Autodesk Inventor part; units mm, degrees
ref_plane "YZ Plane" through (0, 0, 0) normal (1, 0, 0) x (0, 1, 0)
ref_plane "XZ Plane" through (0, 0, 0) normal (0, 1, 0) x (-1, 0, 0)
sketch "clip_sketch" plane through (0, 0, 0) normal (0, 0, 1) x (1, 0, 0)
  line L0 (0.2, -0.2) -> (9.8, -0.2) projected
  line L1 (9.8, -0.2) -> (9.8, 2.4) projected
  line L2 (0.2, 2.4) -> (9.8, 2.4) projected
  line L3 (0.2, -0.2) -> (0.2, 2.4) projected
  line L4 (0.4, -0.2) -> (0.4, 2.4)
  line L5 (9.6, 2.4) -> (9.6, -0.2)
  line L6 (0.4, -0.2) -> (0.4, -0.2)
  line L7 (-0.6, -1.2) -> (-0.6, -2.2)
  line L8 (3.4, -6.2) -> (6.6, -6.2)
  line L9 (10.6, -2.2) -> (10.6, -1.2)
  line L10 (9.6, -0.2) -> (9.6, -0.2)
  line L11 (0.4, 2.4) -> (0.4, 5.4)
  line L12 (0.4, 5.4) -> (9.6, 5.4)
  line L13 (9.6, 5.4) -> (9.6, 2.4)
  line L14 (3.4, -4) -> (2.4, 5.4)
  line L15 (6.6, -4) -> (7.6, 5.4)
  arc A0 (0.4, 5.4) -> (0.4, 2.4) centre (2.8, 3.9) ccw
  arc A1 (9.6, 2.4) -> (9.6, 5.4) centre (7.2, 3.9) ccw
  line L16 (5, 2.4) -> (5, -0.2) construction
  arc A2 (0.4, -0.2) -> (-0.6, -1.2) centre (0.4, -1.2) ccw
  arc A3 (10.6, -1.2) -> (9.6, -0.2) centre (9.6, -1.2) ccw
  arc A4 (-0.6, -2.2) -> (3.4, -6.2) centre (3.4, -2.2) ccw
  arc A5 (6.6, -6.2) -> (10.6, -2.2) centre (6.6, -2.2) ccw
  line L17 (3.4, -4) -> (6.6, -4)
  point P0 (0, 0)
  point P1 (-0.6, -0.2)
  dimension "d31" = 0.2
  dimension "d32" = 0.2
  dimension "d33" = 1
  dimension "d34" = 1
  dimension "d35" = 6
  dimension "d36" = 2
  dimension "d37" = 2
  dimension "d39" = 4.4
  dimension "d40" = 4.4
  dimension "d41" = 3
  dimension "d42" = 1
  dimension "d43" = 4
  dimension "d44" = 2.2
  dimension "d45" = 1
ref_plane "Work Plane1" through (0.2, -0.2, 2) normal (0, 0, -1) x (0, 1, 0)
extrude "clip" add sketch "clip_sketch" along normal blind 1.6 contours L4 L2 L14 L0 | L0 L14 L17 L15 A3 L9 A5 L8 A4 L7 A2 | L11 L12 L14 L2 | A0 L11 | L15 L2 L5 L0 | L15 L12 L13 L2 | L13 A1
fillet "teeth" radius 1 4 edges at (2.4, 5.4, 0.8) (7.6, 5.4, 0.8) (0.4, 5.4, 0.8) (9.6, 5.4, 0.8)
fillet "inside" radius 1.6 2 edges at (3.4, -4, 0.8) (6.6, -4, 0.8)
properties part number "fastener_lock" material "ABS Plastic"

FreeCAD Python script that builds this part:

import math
import FreeCAD as App
import Part
import Sketcher

V = App.Vector


def edges_at(feature, points):
    """Names of the edges that pass closest to the given points."""
    edges = feature.Shape.Edges
    near = lambda p: min(range(len(edges)), key=lambda i: edges[i].distToShape(Part.Vertex(*p))[0])
    return sorted({f"Edge{near(p) + 1}" for p in points})

doc = App.newDocument("Part")
body = doc.addObject("PartDesign::Body", "Body")

# Sketch on XY plane
sketch1 = body.newObject("Sketcher::SketchObject", "Sketch")
sketch1.AttachmentSupport = (doc.getObject("XY_Plane"), [""])
sketch1.MapMode = "FlatFace"
sketch1.addGeometry(Part.LineSegment(V(0.4, 2.4, 0), V(0.4, -0.2, 0)), False)
sketch1.addGeometry(Part.ArcOfCircle(Part.Circle(V(0.4, -1.2, 0), V(0, 0, 1), 1), math.radians(90), math.radians(180)), False)
sketch1.addGeometry(Part.LineSegment(V(-0.6, -1.2, 0), V(-0.6, -2.2, 0)), False)
sketch1.addGeometry(Part.ArcOfCircle(Part.Circle(V(3.4, -2.2, 0), V(0, 0, 1), 4), math.radians(180), math.radians(270)), False)
sketch1.addGeometry(Part.LineSegment(V(3.4, -6.2, 0), V(6.6, -6.2, 0)), False)
sketch1.addGeometry(Part.ArcOfCircle(Part.Circle(V(6.6, -2.2, 0), V(0, 0, 1), 4), math.radians(-90), math.radians(0)), False)
sketch1.addGeometry(Part.LineSegment(V(10.6, -2.2, 0), V(10.6, -1.2, 0)), False)
sketch1.addGeometry(Part.ArcOfCircle(Part.Circle(V(9.6, -1.2, 0), V(0, 0, 1), 1), math.radians(0), math.radians(90)), False)
sketch1.addGeometry(Part.LineSegment(V(9.6, -0.2, 0), V(9.6, 2.4, 0)), False)
sketch1.addGeometry(Part.ArcOfCircle(Part.Circle(V(7.2, 3.9, 0), V(0, 0, 1), 2.8), math.radians(-32), math.radians(32)), False)
sketch1.addGeometry(Part.LineSegment(V(9.6, 5.4, 0), V(7.6, 5.4, 0)), False)
sketch1.addGeometry(Part.LineSegment(V(7.6, 5.4, 0), V(6.6, -4, 0)), False)
sketch1.addGeometry(Part.LineSegment(V(6.6, -4, 0), V(3.4, -4, 0)), False)
sketch1.addGeometry(Part.LineSegment(V(3.4, -4, 0), V(2.4, 5.4, 0)), False)
sketch1.addGeometry(Part.LineSegment(V(2.4, 5.4, 0), V(0.4, 5.4, 0)), False)
sketch1.addGeometry(Part.ArcOfCircle(Part.Circle(V(2.8, 3.9, 0), V(0, 0, 1), 2.8), math.radians(148), math.radians(212)), False)
sketch1.addConstraint(Sketcher.Constraint("Coincident", 0, 2, 1, 1))
sketch1.addConstraint(Sketcher.Constraint("Tangent", 1, 2, 2, 1))
sketch1.addConstraint(Sketcher.Constraint("Tangent", 2, 2, 3, 1))
sketch1.addConstraint(Sketcher.Constraint("Tangent", 3, 2, 4, 1))
sketch1.addConstraint(Sketcher.Constraint("Tangent", 4, 2, 5, 1))
sketch1.addConstraint(Sketcher.Constraint("Tangent", 5, 2, 6, 1))
sketch1.addConstraint(Sketcher.Constraint("Tangent", 6, 2, 7, 1))
sketch1.addConstraint(Sketcher.Constraint("Coincident", 7, 2, 8, 1))
sketch1.addConstraint(Sketcher.Constraint("Coincident", 8, 2, 9, 1))
sketch1.addConstraint(Sketcher.Constraint("Coincident", 9, 2, 10, 1))
sketch1.addConstraint(Sketcher.Constraint("Coincident", 10, 2, 11, 1))
sketch1.addConstraint(Sketcher.Constraint("Coincident", 11, 2, 12, 1))
sketch1.addConstraint(Sketcher.Constraint("Coincident", 12, 2, 13, 1))
sketch1.addConstraint(Sketcher.Constraint("Coincident", 13, 2, 14, 1))
sketch1.addConstraint(Sketcher.Constraint("Coincident", 14, 2, 15, 1))
sketch1.addConstraint(Sketcher.Constraint("Coincident", 15, 2, 0, 1))
sketch1.addConstraint(Sketcher.Constraint("Vertical", 0))
sketch1.addConstraint(Sketcher.Constraint("Vertical", 2))
sketch1.addConstraint(Sketcher.Constraint("Horizontal", 4))
sketch1.addConstraint(Sketcher.Constraint("Vertical", 6))
sketch1.addConstraint(Sketcher.Constraint("Vertical", 8))
sketch1.addConstraint(Sketcher.Constraint("Horizontal", 10))
sketch1.addConstraint(Sketcher.Constraint("Horizontal", 12))
sketch1.addConstraint(Sketcher.Constraint("Horizontal", 14))
sketch1.addConstraint(Sketcher.Constraint("Equal", 3, 5))
sketch1.addConstraint(Sketcher.Constraint("Equal", 1, 7))
sketch1.addConstraint(Sketcher.Constraint("Equal", 9, 15))
sketch1.addConstraint(Sketcher.Constraint("Horizontal", 1, 3, 7, 3))
sketch1.addConstraint(Sketcher.Constraint("Horizontal", 9, 3, 15, 3))
sketch1.addConstraint(Sketcher.Constraint("Horizontal", 10, 2, 13, 2))
sketch1.addConstraint(Sketcher.Constraint("Horizontal", 8, 2, 15, 2))
sketch1.addConstraint(Sketcher.Constraint("Vertical", 1, 3, 0, 2))
sketch1.addConstraint(Sketcher.Constraint("Vertical", 8, 2, 9, 2))
sketch1.addConstraint(Sketcher.Constraint("Vertical", 4, 2, 11, 2))
sketch1.addConstraint(Sketcher.Constraint("Vertical", 3, 2, 12, 2))
sketch1.addConstraint(Sketcher.Constraint("Equal", 10, 14))
sketch1.addConstraint(Sketcher.Constraint("Equal", 11, 13))
sketch1.addConstraint(Sketcher.Constraint("Radius", 1, 1.0))
sketch1.addConstraint(Sketcher.Constraint("Radius", 3, 4.0))
sketch1.addConstraint(Sketcher.Constraint("DistanceX", 10, 2, 10, 1, 2.0))
sketch1.addConstraint(Sketcher.Constraint("DistanceY", 2, 2, 2, 1, 1.0))
sketch1.addConstraint(Sketcher.Constraint("DistanceY", 11, 2, -1, 1, 4.0))
sketch1.addConstraint(Sketcher.Constraint("DistanceY", 8, 2, 9, 2, 3.0))
sketch1.addConstraint(Sketcher.Constraint("DistanceY", 3, 3, -1, 1, 2.2))
sketch1.addConstraint(Sketcher.Constraint("DistanceX", 15, 3, 9, 3, 4.4))
sketch1.addConstraint(Sketcher.Constraint("DistanceX", 4, 1, 4, 2, 3.2))
sketch1.addConstraint(Sketcher.Constraint("DistanceY", 0, 2, 0, 1, 2.6))
sketch1.addConstraint(Sketcher.Constraint("DistanceX", -1, 1, 1, 3, 0.4))
pad1 = body.newObject("PartDesign::Pad", "Pad")
pad1.Profile = sketch1
pad1.Length = 1.6
doc.recompute()

fillet = body.newObject("PartDesign::Fillet", "Fillet")
fillet.Base = (pad1, edges_at(pad1, [
    (2.4, 5.4, 0.8),
    (7.6, 5.4, 0.8),
    (0.4, 5.4, 0.8),
    (9.6, 5.4, 0.8),
]))
fillet.Radius = 1
doc.recompute()

fillet2 = body.newObject("PartDesign::Fillet", "Fillet001")
fillet2.Base = (fillet, edges_at(fillet, [(3.4, -4, 0.8), (6.6, -4, 0.8)]))
fillet2.Radius = 1.6

doc.recompute()
